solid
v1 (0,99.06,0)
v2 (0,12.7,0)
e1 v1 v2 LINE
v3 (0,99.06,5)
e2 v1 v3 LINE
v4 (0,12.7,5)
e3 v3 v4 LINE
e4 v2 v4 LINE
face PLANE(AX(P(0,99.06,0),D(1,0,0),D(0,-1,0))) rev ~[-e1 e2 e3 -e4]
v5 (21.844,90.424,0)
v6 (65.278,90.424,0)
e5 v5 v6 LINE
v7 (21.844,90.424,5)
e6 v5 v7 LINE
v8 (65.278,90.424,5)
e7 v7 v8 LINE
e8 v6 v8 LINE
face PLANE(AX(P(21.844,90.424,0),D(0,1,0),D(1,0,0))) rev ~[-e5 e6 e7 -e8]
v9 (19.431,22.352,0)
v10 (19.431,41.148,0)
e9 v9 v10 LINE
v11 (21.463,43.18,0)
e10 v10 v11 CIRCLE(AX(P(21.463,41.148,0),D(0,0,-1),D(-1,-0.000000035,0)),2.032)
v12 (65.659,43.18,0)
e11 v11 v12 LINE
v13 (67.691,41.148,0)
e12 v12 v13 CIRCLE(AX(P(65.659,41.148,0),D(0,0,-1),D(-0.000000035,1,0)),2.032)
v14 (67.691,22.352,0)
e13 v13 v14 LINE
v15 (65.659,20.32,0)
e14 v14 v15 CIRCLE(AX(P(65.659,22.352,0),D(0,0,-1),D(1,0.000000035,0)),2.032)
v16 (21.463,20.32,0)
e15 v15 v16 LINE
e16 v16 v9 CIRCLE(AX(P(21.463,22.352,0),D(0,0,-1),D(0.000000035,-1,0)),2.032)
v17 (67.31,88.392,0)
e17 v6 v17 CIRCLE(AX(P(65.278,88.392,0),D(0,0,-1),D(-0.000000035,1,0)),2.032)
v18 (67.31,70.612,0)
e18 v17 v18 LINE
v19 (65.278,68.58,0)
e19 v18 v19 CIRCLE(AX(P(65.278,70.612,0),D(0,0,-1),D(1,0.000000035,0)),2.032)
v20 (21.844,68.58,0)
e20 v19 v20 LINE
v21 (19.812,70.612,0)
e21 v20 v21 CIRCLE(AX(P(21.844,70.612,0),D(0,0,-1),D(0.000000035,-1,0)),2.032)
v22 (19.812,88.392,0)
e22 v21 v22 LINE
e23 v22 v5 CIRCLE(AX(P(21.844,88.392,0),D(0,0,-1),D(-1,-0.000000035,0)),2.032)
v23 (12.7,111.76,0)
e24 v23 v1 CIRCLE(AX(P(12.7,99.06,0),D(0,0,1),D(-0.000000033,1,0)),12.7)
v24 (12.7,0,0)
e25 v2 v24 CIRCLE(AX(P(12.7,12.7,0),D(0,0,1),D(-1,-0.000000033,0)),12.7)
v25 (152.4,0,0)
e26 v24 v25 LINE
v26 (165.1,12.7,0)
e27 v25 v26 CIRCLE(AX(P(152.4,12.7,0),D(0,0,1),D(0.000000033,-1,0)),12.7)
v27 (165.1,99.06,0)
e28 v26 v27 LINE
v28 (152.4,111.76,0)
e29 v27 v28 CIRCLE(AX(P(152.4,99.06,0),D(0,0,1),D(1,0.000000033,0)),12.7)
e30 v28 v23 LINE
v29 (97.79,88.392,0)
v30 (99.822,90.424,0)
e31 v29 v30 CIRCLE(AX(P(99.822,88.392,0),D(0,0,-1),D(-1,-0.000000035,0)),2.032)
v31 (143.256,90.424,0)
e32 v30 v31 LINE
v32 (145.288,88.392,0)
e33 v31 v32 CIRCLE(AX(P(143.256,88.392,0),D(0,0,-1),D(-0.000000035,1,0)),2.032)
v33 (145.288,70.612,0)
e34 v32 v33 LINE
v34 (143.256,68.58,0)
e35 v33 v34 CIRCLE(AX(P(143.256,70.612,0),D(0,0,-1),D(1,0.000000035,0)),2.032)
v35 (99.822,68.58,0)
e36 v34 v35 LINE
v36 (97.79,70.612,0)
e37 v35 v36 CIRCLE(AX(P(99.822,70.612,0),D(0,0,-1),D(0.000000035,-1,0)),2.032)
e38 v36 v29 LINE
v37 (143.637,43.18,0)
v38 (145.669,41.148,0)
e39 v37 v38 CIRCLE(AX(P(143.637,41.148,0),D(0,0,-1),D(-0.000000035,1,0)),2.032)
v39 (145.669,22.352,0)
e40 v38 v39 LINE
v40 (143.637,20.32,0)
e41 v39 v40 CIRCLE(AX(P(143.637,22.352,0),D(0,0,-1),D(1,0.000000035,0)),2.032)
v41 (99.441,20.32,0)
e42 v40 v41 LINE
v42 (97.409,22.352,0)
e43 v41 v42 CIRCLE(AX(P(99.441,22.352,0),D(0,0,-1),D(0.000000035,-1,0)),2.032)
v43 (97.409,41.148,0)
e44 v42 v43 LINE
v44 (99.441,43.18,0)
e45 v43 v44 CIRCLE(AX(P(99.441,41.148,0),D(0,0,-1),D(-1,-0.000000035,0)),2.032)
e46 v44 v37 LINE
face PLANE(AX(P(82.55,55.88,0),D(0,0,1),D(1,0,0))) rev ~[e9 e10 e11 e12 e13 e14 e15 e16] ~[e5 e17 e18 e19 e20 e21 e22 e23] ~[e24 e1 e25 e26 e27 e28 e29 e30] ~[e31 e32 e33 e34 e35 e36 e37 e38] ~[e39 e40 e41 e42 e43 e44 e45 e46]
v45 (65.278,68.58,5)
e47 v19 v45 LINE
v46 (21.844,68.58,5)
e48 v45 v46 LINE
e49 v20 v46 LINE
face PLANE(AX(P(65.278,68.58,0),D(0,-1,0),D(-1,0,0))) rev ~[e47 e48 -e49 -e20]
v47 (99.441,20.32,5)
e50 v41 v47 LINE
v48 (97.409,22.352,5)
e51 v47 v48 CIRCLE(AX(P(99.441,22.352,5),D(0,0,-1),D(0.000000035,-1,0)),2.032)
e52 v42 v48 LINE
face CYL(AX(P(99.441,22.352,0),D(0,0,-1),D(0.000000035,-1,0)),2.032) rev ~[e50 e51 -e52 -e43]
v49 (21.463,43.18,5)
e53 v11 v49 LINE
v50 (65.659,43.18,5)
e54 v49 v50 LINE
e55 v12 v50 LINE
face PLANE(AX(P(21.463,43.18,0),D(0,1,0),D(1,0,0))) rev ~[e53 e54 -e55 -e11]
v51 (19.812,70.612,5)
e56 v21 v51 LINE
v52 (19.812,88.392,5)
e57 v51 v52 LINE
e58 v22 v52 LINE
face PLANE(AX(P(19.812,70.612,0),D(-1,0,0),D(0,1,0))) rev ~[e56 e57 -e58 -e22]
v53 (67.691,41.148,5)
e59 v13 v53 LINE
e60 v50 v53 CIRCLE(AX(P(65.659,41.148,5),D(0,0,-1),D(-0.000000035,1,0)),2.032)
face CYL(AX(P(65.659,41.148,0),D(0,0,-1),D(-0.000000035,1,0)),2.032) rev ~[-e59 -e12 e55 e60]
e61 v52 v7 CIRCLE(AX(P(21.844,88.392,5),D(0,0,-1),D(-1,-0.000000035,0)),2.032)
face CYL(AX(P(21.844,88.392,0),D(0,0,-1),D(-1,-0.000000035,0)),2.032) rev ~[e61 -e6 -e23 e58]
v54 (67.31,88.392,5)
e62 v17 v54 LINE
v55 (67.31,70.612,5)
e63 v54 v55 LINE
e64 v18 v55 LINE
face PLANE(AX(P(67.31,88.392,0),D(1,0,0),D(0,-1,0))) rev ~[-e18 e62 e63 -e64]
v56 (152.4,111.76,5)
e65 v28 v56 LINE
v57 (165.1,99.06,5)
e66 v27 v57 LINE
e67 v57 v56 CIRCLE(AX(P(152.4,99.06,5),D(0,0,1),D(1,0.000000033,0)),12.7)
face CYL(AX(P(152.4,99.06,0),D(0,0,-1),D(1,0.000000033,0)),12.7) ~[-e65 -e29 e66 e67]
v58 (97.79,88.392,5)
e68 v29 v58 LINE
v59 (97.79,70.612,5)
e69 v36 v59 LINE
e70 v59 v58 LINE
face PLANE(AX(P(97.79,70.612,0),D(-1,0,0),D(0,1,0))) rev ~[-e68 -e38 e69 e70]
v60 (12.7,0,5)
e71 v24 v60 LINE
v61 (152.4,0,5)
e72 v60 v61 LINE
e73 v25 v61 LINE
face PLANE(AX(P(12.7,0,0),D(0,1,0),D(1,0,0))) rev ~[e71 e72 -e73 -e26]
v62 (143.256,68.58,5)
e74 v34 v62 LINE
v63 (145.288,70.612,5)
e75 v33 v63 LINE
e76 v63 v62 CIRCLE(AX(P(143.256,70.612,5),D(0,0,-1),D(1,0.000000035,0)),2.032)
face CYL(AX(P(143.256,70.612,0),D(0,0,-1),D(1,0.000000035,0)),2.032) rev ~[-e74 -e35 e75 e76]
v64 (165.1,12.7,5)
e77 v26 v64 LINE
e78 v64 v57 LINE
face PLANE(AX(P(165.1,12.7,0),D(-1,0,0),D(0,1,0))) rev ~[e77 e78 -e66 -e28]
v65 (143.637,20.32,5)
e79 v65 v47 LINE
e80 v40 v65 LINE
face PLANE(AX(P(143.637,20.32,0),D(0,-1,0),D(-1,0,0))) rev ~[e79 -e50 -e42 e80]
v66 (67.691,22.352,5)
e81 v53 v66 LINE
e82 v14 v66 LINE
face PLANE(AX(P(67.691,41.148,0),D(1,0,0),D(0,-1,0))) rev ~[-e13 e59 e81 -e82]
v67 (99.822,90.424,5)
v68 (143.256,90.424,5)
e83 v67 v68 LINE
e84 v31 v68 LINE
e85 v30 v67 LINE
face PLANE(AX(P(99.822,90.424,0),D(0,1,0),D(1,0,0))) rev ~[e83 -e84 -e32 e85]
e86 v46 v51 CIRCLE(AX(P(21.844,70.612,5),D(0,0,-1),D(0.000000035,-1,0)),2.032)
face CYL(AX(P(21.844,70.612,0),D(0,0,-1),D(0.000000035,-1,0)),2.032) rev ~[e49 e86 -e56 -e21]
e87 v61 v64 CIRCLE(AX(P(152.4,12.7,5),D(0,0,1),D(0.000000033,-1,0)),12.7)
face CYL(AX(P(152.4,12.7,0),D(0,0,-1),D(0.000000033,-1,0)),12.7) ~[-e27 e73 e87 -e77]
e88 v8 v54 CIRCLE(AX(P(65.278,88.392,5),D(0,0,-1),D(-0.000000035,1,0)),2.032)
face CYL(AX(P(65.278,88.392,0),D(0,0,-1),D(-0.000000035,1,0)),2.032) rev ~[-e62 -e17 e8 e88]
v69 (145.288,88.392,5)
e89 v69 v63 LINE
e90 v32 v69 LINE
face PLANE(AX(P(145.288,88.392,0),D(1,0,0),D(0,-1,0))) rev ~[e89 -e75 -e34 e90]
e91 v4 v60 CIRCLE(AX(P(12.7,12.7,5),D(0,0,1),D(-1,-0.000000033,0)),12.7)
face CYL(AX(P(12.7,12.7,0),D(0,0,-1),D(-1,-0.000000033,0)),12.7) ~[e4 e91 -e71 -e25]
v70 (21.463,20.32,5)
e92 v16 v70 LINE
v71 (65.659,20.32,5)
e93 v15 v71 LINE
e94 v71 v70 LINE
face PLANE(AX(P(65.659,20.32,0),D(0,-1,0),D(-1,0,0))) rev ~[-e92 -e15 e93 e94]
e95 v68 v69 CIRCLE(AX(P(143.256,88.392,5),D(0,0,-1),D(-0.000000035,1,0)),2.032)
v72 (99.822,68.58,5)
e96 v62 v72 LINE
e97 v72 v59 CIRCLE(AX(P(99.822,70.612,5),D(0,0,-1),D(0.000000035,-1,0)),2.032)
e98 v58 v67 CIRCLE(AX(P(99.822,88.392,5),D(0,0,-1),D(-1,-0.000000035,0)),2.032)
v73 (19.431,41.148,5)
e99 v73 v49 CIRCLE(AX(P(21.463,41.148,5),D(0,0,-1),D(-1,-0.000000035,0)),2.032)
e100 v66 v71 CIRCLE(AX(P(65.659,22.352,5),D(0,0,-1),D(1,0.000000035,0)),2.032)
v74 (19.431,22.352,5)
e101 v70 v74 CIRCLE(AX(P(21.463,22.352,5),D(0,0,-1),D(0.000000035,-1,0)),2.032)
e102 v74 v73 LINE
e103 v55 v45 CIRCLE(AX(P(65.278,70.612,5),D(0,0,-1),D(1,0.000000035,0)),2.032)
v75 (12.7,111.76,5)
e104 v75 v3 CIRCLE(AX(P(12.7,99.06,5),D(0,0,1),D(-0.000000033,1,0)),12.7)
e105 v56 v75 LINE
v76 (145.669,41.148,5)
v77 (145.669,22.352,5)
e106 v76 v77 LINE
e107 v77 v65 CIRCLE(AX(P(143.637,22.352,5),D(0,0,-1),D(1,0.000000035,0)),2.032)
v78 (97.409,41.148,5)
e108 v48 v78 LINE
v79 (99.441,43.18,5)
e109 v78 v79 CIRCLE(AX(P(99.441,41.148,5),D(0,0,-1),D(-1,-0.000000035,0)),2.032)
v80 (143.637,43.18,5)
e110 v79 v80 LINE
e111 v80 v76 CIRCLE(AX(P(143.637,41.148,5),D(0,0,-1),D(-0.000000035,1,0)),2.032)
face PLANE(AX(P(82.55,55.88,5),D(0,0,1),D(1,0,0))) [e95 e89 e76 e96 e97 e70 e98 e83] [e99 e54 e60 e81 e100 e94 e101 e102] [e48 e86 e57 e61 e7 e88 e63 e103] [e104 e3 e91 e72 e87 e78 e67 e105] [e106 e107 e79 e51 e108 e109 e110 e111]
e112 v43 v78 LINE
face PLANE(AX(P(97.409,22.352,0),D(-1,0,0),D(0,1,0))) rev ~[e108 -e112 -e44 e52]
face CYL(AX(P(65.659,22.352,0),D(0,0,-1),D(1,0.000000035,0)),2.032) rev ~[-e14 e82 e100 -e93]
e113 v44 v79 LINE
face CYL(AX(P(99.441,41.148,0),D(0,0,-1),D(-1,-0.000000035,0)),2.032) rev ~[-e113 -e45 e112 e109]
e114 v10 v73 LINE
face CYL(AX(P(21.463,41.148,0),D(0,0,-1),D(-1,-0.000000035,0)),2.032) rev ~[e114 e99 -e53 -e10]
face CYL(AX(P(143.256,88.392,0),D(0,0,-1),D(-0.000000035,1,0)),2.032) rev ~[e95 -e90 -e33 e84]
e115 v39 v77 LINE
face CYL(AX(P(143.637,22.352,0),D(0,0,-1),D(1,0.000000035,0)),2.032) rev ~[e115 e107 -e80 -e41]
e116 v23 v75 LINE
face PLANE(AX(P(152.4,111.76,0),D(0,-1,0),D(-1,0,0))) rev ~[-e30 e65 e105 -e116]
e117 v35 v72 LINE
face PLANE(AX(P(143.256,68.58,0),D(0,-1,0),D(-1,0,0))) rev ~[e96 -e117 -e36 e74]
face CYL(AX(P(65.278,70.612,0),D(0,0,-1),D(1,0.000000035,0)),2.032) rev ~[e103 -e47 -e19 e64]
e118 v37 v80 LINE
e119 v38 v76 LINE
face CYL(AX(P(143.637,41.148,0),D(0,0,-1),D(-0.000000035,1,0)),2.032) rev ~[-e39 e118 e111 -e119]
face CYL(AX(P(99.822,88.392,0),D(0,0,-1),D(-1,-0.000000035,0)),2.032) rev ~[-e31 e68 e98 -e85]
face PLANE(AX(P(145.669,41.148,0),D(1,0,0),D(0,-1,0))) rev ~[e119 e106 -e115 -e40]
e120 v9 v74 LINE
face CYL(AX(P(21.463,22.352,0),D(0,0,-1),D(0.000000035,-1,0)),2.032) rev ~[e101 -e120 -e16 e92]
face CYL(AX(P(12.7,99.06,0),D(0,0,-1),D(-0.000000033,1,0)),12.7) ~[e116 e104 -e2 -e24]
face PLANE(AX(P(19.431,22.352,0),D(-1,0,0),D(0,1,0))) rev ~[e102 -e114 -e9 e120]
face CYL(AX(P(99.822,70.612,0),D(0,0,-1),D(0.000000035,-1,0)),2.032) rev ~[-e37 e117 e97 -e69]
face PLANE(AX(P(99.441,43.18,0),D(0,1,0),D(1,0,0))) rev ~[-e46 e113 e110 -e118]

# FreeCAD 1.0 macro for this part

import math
import FreeCAD as App
import Part
import Sketcher
Q = App.Units.Quantity

doc = App.newDocument("Part")
body = doc.addObject("PartDesign::Body", "Body")

# Sketch on XY plane
sketch1 = body.newObject("Sketcher::SketchObject", "Sketch")
sketch1.AttachmentSupport = (doc.getObject("XY_Plane"), [""])
sketch1.MapMode = "FlatFace"
sketch1.addGeometry(Part.ArcOfCircle(Part.Circle(App.Vector(12.7, 12.7, 0), App.Vector(0, 0, 1), 12.7), math.radians(-179.999998), math.radians(-90.000002)), False)
sketch1.addGeometry(Part.LineSegment(App.Vector(12.7, 0, 0), App.Vector(152.4, 0, 0)), False)
sketch1.addGeometry(Part.ArcOfCircle(Part.Circle(App.Vector(152.4, 12.7, 0), App.Vector(0, 0, 1), 12.7), math.radians(-89.999998), math.radians(-0.000002)), False)
sketch1.addGeometry(Part.LineSegment(App.Vector(165.1, 12.7, 0), App.Vector(165.1, 99.06, 0)), False)
sketch1.addGeometry(Part.ArcOfCircle(Part.Circle(App.Vector(152.4, 99.06, 0), App.Vector(0, 0, 1), 12.7), math.radians(0.000002), math.radians(89.999998)), False)
sketch1.addGeometry(Part.LineSegment(App.Vector(152.4, 111.76, 0), App.Vector(12.7, 111.76, 0)), False)
sketch1.addGeometry(Part.ArcOfCircle(Part.Circle(App.Vector(12.7, 99.06, 0), App.Vector(0, 0, 1), 12.7), math.radians(90.000002), math.radians(179.999998)), False)
sketch1.addGeometry(Part.LineSegment(App.Vector(0, 99.06, 0), App.Vector(0, 12.7, 0)), False)
sketch1.addGeometry(Part.LineSegment(App.Vector(19.431, 22.352, 0), App.Vector(19.431, 41.148, 0)), False)
sketch1.addGeometry(Part.ArcOfCircle(Part.Circle(App.Vector(21.463, 41.148, 0), App.Vector(0, 0, 1), 2.032), math.radians(89.999998), math.radians(180.000002)), False)
sketch1.addGeometry(Part.LineSegment(App.Vector(21.463, 43.18, 0), App.Vector(65.659, 43.18, 0)), False)
sketch1.addGeometry(Part.ArcOfCircle(Part.Circle(App.Vector(65.659, 41.148, 0), App.Vector(0, 0, 1), 2.032), math.radians(-0.000002), math.radians(90.000002)), False)
sketch1.addGeometry(Part.LineSegment(App.Vector(67.691, 41.148, 0), App.Vector(67.691, 22.352, 0)), False)
sketch1.addGeometry(Part.ArcOfCircle(Part.Circle(App.Vector(65.659, 22.352, 0), App.Vector(0, 0, 1), 2.032), math.radians(-90.000002), math.radians(0.000002)), False)
sketch1.addGeometry(Part.LineSegment(App.Vector(65.659, 20.32, 0), App.Vector(21.463, 20.32, 0)), False)
sketch1.addGeometry(Part.ArcOfCircle(Part.Circle(App.Vector(21.463, 22.352, 0), App.Vector(0, 0, 1), 2.032), math.radians(179.999998), math.radians(270.000002)), False)
sketch1.addGeometry(Part.LineSegment(App.Vector(145.669, 41.148, 0), App.Vector(145.669, 22.352, 0)), False)
sketch1.addGeometry(Part.ArcOfCircle(Part.Circle(App.Vector(143.637, 22.352, 0), App.Vector(0, 0, 1), 2.032), math.radians(-90.000002), math.radians(0.000002)), False)
sketch1.addGeometry(Part.LineSegment(App.Vector(143.637, 20.32, 0), App.Vector(99.441, 20.32, 0)), False)
sketch1.addGeometry(Part.ArcOfCircle(Part.Circle(App.Vector(99.441, 22.352, 0), App.Vector(0, 0, 1), 2.032), math.radians(179.999998), math.radians(270.000002)), False)
sketch1.addGeometry(Part.LineSegment(App.Vector(97.409, 22.352, 0), App.Vector(97.409, 41.148, 0)), False)
sketch1.addGeometry(Part.ArcOfCircle(Part.Circle(App.Vector(99.441, 41.148, 0), App.Vector(0, 0, 1), 2.032), math.radians(89.999998), math.radians(180.000002)), False)
sketch1.addGeometry(Part.LineSegment(App.Vector(99.441, 43.18, 0), App.Vector(143.637, 43.18, 0)), False)
sketch1.addGeometry(Part.ArcOfCircle(Part.Circle(App.Vector(143.637, 41.148, 0), App.Vector(0, 0, 1), 2.032), math.radians(-0.000002), math.radians(90.000002)), False)
sketch1.addGeometry(Part.LineSegment(App.Vector(19.812, 70.612, 0), App.Vector(19.812, 88.392, 0)), False)
sketch1.addGeometry(Part.ArcOfCircle(Part.Circle(App.Vector(21.844, 88.392, 0), App.Vector(0, 0, 1), 2.032), math.radians(89.999998), math.radians(180.000002)), False)
sketch1.addGeometry(Part.LineSegment(App.Vector(21.844, 90.424, 0), App.Vector(65.278, 90.424, 0)), False)
sketch1.addGeometry(Part.ArcOfCircle(Part.Circle(App.Vector(65.278, 88.392, 0), App.Vector(0, 0, 1), 2.032), math.radians(-0.000002), math.radians(90.000002)), False)
sketch1.addGeometry(Part.LineSegment(App.Vector(67.31, 88.392, 0), App.Vector(67.31, 70.612, 0)), False)
sketch1.addGeometry(Part.ArcOfCircle(Part.Circle(App.Vector(65.278, 70.612, 0), App.Vector(0, 0, 1), 2.032), math.radians(-90.000002), math.radians(0.000002)), False)
sketch1.addGeometry(Part.LineSegment(App.Vector(65.278, 68.58, 0), App.Vector(21.844, 68.58, 0)), False)
sketch1.addGeometry(Part.ArcOfCircle(Part.Circle(App.Vector(21.844, 70.612, 0), App.Vector(0, 0, 1), 2.032), math.radians(179.999998), math.radians(270.000002)), False)
sketch1.addGeometry(Part.ArcOfCircle(Part.Circle(App.Vector(99.822, 70.612, 0), App.Vector(0, 0, 1), 2.032), math.radians(179.999998), math.radians(270.000002)), False)
sketch1.addGeometry(Part.LineSegment(App.Vector(97.79, 70.612, 0), App.Vector(97.79, 88.392, 0)), False)
sketch1.addGeometry(Part.ArcOfCircle(Part.Circle(App.Vector(99.822, 88.392, 0), App.Vector(0, 0, 1), 2.032), math.radians(89.999998), math.radians(180.000002)), False)
sketch1.addGeometry(Part.LineSegment(App.Vector(99.822, 90.424, 0), App.Vector(143.256, 90.424, 0)), False)
sketch1.addGeometry(Part.ArcOfCircle(Part.Circle(App.Vector(143.256, 88.392, 0), App.Vector(0, 0, 1), 2.032), math.radians(-0.000002), math.radians(90.000002)), False)
sketch1.addGeometry(Part.LineSegment(App.Vector(145.288, 88.392, 0), App.Vector(145.288, 70.612, 0)), False)
sketch1.addGeometry(Part.ArcOfCircle(Part.Circle(App.Vector(143.256, 70.612, 0), App.Vector(0, 0, 1), 2.032), math.radians(-90.000002), math.radians(0.000002)), False)
sketch1.addGeometry(Part.LineSegment(App.Vector(143.256, 68.58, 0), App.Vector(99.822, 68.58, 0)), False)
sketch1.addConstraint(Sketcher.Constraint("Tangent", 0, 2, 1, 1))
sketch1.addConstraint(Sketcher.Constraint("Tangent", 1, 2, 2, 1))
sketch1.addConstraint(Sketcher.Constraint("Tangent", 2, 2, 3, 1))
sketch1.addConstraint(Sketcher.Constraint("Tangent", 3, 2, 4, 1))
sketch1.addConstraint(Sketcher.Constraint("Tangent", 4, 2, 5, 1))
sketch1.addConstraint(Sketcher.Constraint("Tangent", 5, 2, 6, 1))
sketch1.addConstraint(Sketcher.Constraint("Tangent", 6, 2, 7, 1))
sketch1.addConstraint(Sketcher.Constraint("Tangent", 7, 2, 0, 1))
sketch1.addConstraint(Sketcher.Constraint("Tangent", 8, 2, 9, 2))
sketch1.addConstraint(Sketcher.Constraint("Tangent", 9, 1, 10, 1))
sketch1.addConstraint(Sketcher.Constraint("Tangent", 10, 2, 11, 2))
sketch1.addConstraint(Sketcher.Constraint("Tangent", 11, 1, 12, 1))
sketch1.addConstraint(Sketcher.Constraint("Tangent", 12, 2, 13, 2))
sketch1.addConstraint(Sketcher.Constraint("Tangent", 13, 1, 14, 1))
sketch1.addConstraint(Sketcher.Constraint("Tangent", 14, 2, 15, 2))
sketch1.addConstraint(Sketcher.Constraint("Tangent", 15, 1, 8, 1))
sketch1.addConstraint(Sketcher.Constraint("Tangent", 16, 2, 17, 2))
sketch1.addConstraint(Sketcher.Constraint("Tangent", 17, 1, 18, 1))
sketch1.addConstraint(Sketcher.Constraint("Tangent", 18, 2, 19, 2))
sketch1.addConstraint(Sketcher.Constraint("Tangent", 19, 1, 20, 1))
sketch1.addConstraint(Sketcher.Constraint("Tangent", 20, 2, 21, 2))
sketch1.addConstraint(Sketcher.Constraint("Tangent", 21, 1, 22, 1))
sketch1.addConstraint(Sketcher.Constraint("Tangent", 22, 2, 23, 2))
sketch1.addConstraint(Sketcher.Constraint("Tangent", 23, 1, 16, 1))
sketch1.addConstraint(Sketcher.Constraint("Tangent", 24, 2, 25, 2))
sketch1.addConstraint(Sketcher.Constraint("Tangent", 25, 1, 26, 1))
sketch1.addConstraint(Sketcher.Constraint("Tangent", 26, 2, 27, 2))
sketch1.addConstraint(Sketcher.Constraint("Tangent", 27, 1, 28, 1))
sketch1.addConstraint(Sketcher.Constraint("Tangent", 28, 2, 29, 2))
sketch1.addConstraint(Sketcher.Constraint("Tangent", 29, 1, 30, 1))
sketch1.addConstraint(Sketcher.Constraint("Tangent", 30, 2, 31, 2))
sketch1.addConstraint(Sketcher.Constraint("Tangent", 31, 1, 24, 1))
sketch1.addConstraint(Sketcher.Constraint("Tangent", 32, 1, 33, 1))
sketch1.addConstraint(Sketcher.Constraint("Tangent", 33, 2, 34, 2))
sketch1.addConstraint(Sketcher.Constraint("Tangent", 34, 1, 35, 1))
sketch1.addConstraint(Sketcher.Constraint("Tangent", 35, 2, 36, 2))
sketch1.addConstraint(Sketcher.Constraint("Tangent", 36, 1, 37, 1))
sketch1.addConstraint(Sketcher.Constraint("Tangent", 37, 2, 38, 2))
sketch1.addConstraint(Sketcher.Constraint("Tangent", 38, 1, 39, 1))
sketch1.addConstraint(Sketcher.Constraint("Tangent", 39, 2, 32, 2))
sketch1.addConstraint(Sketcher.Constraint("Horizontal", 1))
sketch1.addConstraint(Sketcher.Constraint("Vertical", 3))
sketch1.addConstraint(Sketcher.Constraint("Horizontal", 5))
sketch1.addConstraint(Sketcher.Constraint("Vertical", 7))
sketch1.addConstraint(Sketcher.Constraint("Vertical", 8))
sketch1.addConstraint(Sketcher.Constraint("Horizontal", 10))
sketch1.addConstraint(Sketcher.Constraint("Vertical", 12))
sketch1.addConstraint(Sketcher.Constraint("Horizontal", 14))
sketch1.addConstraint(Sketcher.Constraint("Vertical", 16))
sketch1.addConstraint(Sketcher.Constraint("Horizontal", 18))
sketch1.addConstraint(Sketcher.Constraint("Vertical", 20))
sketch1.addConstraint(Sketcher.Constraint("Horizontal", 22))
sketch1.addConstraint(Sketcher.Constraint("Vertical", 24))
sketch1.addConstraint(Sketcher.Constraint("Horizontal", 26))
sketch1.addConstraint(Sketcher.Constraint("Vertical", 28))
sketch1.addConstraint(Sketcher.Constraint("Horizontal", 30))
sketch1.addConstraint(Sketcher.Constraint("Vertical", 33))
sketch1.addConstraint(Sketcher.Constraint("Horizontal", 35))
sketch1.addConstraint(Sketcher.Constraint("Vertical", 37))
sketch1.addConstraint(Sketcher.Constraint("Horizontal", 39))
sketch1.addConstraint(Sketcher.Constraint("Equal", 0, 2))
sketch1.addConstraint(Sketcher.Constraint("Equal", 2, 4))
sketch1.addConstraint(Sketcher.Constraint("Equal", 4, 6))
sketch1.addConstraint(Sketcher.Constraint("Equal", 9, 11))
sketch1.addConstraint(Sketcher.Constraint("Equal", 11, 13))
sketch1.addConstraint(Sketcher.Constraint("Equal", 13, 15))
sketch1.addConstraint(Sketcher.Constraint("Equal", 15, 17))
sketch1.addConstraint(Sketcher.Constraint("Equal", 17, 19))
sketch1.addConstraint(Sketcher.Constraint("Equal", 19, 21))
sketch1.addConstraint(Sketcher.Constraint("Equal", 21, 23))
sketch1.addConstraint(Sketcher.Constraint("Equal", 23, 25))
sketch1.addConstraint(Sketcher.Constraint("Equal", 25, 27))
sketch1.addConstraint(Sketcher.Constraint("Equal", 27, 29))
sketch1.addConstraint(Sketcher.Constraint("Equal", 29, 31))
sketch1.addConstraint(Sketcher.Constraint("Equal", 31, 32))
sketch1.addConstraint(Sketcher.Constraint("Equal", 32, 34))
sketch1.addConstraint(Sketcher.Constraint("Equal", 34, 36))
sketch1.addConstraint(Sketcher.Constraint("Equal", 36, 38))
sketch1.addConstraint(Sketcher.Constraint("PointOnObject", 0, 2, -1))
sketch1.addConstraint(Sketcher.Constraint("PointOnObject", 6, 2, -2))
sketch1.addConstraint(Sketcher.Constraint("Horizontal", 15, 3, 17, 3))
sketch1.addConstraint(Sketcher.Constraint("Horizontal", 11, 3, 21, 3))
sketch1.addConstraint(Sketcher.Constraint("Horizontal", 31, 3, 32, 3))
sketch1.addConstraint(Sketcher.Constraint("Horizontal", 27, 3, 34, 3))
sketch1.addConstraint(Sketcher.Constraint("Equal", 14, 18))
sketch1.addConstraint(Sketcher.Constraint("Equal", 30, 35))
sketch1.addConstraint(Sketcher.Constraint("Radius", 0, Q("0.5 in")))
sketch1.addConstraint(Sketcher.Constraint("Radius", 9, Q("0.08 in")))
sketch1.addConstraint(Sketcher.Constraint("DistanceX", 1, 1, 1, 2, Q("5.5 in")))
sketch1.addConstraint(Sketcher.Constraint("DistanceY", 3, 1, 3, 2, Q("3.4 in")))
sketch1.addConstraint(Sketcher.Constraint("DistanceY", 24, 1, 24, 2, Q("0.7 in")))
sketch1.addConstraint(Sketcher.Constraint("DistanceY", 9, 1, 30, 2, Q("1 in")))
sketch1.addConstraint(Sketcher.Constraint("DistanceX", 10, 1, 10, 2, Q("1.74 in")))
sketch1.addConstraint(Sketcher.Constraint("DistanceX", 26, 1, 26, 2, Q("1.71 in")))
sketch1.addConstraint(Sketcher.Constraint("DistanceY", 8, 1, 8, 2, Q("0.74 in")))
sketch1.addConstraint(Sketcher.Constraint("DistanceY", -1, 1, 9, 1, Q("1.7 in")))
sketch1.addConstraint(Sketcher.Constraint("DistanceX", 27, 1, 33, 2, Q("1.2 in")))
sketch1.addConstraint(Sketcher.Constraint("DistanceX", -1, 1, 25, 3, Q("0.86 in")))
sketch1.addConstraint(Sketcher.Constraint("DistanceX", 13, 3, 17, 3, Q("3.07 in")))
sketch1.addConstraint(Sketcher.Constraint("DistanceX", -1, 1, 9, 3, Q("0.845 in")))
pad1 = body.newObject("PartDesign::Pad", "Pad")
pad1.Profile = sketch1
pad1.Length = 5

doc.recompute()
